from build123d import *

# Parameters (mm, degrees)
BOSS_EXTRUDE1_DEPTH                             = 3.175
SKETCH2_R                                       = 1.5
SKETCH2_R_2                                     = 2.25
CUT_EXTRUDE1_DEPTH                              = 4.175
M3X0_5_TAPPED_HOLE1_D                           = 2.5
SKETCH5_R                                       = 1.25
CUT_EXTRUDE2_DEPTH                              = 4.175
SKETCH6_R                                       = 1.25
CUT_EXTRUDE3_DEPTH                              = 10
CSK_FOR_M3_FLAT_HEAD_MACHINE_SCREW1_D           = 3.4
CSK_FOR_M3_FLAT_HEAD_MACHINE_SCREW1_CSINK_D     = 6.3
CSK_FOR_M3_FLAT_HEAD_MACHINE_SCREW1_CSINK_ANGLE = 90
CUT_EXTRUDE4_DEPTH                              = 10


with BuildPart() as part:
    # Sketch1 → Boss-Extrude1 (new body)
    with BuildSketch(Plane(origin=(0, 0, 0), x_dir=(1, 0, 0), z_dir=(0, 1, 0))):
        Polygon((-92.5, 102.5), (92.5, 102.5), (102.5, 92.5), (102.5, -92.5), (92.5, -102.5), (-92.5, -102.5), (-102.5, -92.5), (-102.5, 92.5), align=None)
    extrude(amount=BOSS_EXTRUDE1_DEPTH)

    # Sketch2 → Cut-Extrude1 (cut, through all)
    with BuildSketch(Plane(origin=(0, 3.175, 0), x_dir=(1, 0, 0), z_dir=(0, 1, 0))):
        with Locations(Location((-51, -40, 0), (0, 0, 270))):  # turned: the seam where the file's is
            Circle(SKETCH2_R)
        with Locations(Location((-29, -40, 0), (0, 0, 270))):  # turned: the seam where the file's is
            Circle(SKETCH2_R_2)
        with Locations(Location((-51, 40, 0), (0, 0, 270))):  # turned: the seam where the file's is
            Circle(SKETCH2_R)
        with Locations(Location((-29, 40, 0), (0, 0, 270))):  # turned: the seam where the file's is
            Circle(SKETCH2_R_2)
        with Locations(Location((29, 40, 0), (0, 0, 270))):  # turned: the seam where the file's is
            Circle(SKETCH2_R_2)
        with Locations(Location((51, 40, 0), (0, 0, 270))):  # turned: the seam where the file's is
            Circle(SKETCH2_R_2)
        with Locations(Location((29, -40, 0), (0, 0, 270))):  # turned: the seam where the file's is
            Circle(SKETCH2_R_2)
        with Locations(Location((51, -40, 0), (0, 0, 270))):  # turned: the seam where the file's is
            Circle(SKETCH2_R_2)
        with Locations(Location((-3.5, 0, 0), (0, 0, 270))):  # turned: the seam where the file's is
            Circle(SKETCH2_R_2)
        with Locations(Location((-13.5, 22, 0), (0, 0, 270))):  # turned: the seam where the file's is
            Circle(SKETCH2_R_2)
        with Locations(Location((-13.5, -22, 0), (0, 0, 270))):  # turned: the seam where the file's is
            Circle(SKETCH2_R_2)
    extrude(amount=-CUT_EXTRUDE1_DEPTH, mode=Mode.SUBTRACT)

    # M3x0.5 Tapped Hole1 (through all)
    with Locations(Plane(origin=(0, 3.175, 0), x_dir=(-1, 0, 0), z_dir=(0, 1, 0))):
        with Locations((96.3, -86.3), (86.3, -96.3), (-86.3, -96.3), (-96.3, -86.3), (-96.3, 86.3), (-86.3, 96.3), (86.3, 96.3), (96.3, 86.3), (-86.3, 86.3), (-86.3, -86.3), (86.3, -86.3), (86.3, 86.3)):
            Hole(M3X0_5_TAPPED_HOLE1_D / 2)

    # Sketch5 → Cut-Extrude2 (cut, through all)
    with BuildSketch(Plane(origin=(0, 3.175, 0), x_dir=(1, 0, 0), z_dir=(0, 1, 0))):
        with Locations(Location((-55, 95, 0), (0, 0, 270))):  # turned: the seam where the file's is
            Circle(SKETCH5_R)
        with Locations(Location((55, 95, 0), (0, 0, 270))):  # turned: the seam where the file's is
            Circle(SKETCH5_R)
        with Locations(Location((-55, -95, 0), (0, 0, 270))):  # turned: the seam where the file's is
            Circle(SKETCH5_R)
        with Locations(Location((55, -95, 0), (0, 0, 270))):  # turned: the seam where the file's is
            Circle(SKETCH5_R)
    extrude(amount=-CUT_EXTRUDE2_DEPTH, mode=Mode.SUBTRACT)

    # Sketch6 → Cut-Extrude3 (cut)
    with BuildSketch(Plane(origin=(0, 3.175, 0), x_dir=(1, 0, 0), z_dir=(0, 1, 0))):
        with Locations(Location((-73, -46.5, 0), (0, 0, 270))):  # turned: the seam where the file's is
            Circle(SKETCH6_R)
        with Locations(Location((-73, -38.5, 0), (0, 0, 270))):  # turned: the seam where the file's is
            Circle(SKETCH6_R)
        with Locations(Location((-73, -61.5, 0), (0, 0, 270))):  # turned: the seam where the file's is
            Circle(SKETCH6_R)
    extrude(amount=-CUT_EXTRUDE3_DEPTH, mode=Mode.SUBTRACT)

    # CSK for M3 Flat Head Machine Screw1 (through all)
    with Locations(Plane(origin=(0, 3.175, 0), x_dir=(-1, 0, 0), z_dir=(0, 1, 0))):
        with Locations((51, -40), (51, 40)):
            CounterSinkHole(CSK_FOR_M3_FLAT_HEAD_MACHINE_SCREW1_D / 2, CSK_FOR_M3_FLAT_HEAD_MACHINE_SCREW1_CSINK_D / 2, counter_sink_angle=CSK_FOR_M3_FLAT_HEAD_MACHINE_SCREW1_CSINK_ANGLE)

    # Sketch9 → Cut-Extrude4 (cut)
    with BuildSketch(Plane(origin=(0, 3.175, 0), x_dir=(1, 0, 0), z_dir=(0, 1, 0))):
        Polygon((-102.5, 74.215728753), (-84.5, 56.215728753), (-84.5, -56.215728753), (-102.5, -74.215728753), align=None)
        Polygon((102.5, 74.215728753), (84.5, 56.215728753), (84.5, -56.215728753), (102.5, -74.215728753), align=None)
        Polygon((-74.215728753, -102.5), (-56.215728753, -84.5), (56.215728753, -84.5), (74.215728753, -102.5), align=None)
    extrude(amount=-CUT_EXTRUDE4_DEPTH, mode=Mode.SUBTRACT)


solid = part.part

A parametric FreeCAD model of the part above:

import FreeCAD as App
import Part
import Sketcher
from FreeCAD import Vector

doc = App.newDocument("Part")
body = doc.addObject("PartDesign::Body", "Body")

# Sketch on XZ plane
sketch1 = body.newObject("Sketcher::SketchObject", "Sketch")
sketch1.AttachmentSupport = (doc.getObject("XZ_Plane"), [""])
sketch1.MapMode = "FlatFace"
sketch1.addGeometry([
    Part.LineSegment(Vector(92, -102, 0), Vector(-92, -102, 0)),  # 0
    Part.LineSegment(Vector(-92, -102, 0), Vector(-102, -92, 0)),  # 1
    Part.LineSegment(Vector(-102, -92, 0), Vector(-102, 92, 0)),  # 2
    Part.LineSegment(Vector(-102, 92, 0), Vector(-92, 102, 0)),  # 3
    Part.LineSegment(Vector(-92, 102, 0), Vector(92, 102, 0)),  # 4
    Part.LineSegment(Vector(92, 102, 0), Vector(102, 92, 0)),  # 5
    Part.LineSegment(Vector(102, 92, 0), Vector(102, -92, 0)),  # 6
    Part.LineSegment(Vector(102, -92, 0), Vector(92, -102, 0)),  # 7
], False)
sketch1.addConstraint([
    Sketcher.Constraint("Coincident", 0, 2, 1, 1),
    Sketcher.Constraint("Coincident", 1, 2, 2, 1),
    Sketcher.Constraint("Coincident", 2, 2, 3, 1),
    Sketcher.Constraint("Coincident", 3, 2, 4, 1),
    Sketcher.Constraint("Coincident", 4, 2, 5, 1),
    Sketcher.Constraint("Coincident", 5, 2, 6, 1),
    Sketcher.Constraint("Coincident", 6, 2, 7, 1),
    Sketcher.Constraint("Coincident", 7, 2, 0, 1),
    Sketcher.Constraint("Horizontal", 0),
    Sketcher.Constraint("Vertical", 2),
    Sketcher.Constraint("Horizontal", 4),
    Sketcher.Constraint("Vertical", 6),
    Sketcher.Constraint("Symmetric", 0, 2, 4, 2, -1, 1),
    Sketcher.Constraint("Symmetric", 1, 2, 5, 2, -1, 1),
    Sketcher.Constraint("Perpendicular", 1, 3),
    Sketcher.Constraint("Perpendicular", 5, 7),
    Sketcher.Constraint("Horizontal", 2, 2, 5, 2),
    Sketcher.Constraint("Horizontal", 1, 2, 6, 2),
    Sketcher.Constraint("Vertical", 0, 2, 3, 2),
    Sketcher.Constraint("Equal", 4, 2),
    Sketcher.Constraint("DistanceX", 0, 2, 0, 1, 185.0),
    Sketcher.Constraint("DistanceX", 1, 2, 0, 2, 10.0),
])
pad1 = body.newObject("PartDesign::Pad", "Pad")
pad1.Profile = sketch1
pad1.Length = 3.175
pad1.Reversed = True

# Sketch on XZ plane
sketch2 = body.newObject("Sketcher::SketchObject", "Sketch001")
sketch2.AttachmentSupport = (doc.getObject("XZ_Plane"), [""])
sketch2.MapMode = "FlatFace"
sketch2.AttachmentOffset = App.Placement(Vector(0, 0, -3.175), App.Rotation())
sketch2.addGeometry([
    Part.Circle(Vector(-51, 40, 0), Vector(0, 0, 1), 1.5),  # 0
    Part.Circle(Vector(-29, 40, 0), Vector(0, 0, 1), 2.2),  # 1
    Part.Circle(Vector(-51, -40, 0), Vector(0, 0, 1), 1.5),  # 2
    Part.Circle(Vector(-29, -40, 0), Vector(0, 0, 1), 2.2),  # 3
    Part.Circle(Vector(29, -40, 0), Vector(0, 0, 1), 2.2),  # 4
    Part.Circle(Vector(51, -40, 0), Vector(0, 0, 1), 2.2),  # 5
    Part.Circle(Vector(29, 40, 0), Vector(0, 0, 1), 2.2),  # 6
    Part.Circle(Vector(51, 40, 0), Vector(0, 0, 1), 2.2),  # 7
    Part.Circle(Vector(-3.5, 0, 0), Vector(0, 0, 1), 2.2),  # 8
    Part.Circle(Vector(-13.5, -22, 0), Vector(0, 0, 1), 2.2),  # 9
    Part.Circle(Vector(-13.5, 22, 0), Vector(0, 0, 1), 2.2),  # 10
], False)
sketch2.addConstraint([
    Sketcher.Constraint("Equal", 0, 2),
    Sketcher.Constraint("Equal", 1, 3),
    Sketcher.Constraint("Equal", 3, 4),
    Sketcher.Constraint("Equal", 4, 5),
    Sketcher.Constraint("Equal", 5, 6),
    Sketcher.Constraint("Equal", 6, 7),
    Sketcher.Constraint("Equal", 7, 8),
    Sketcher.Constraint("Equal", 8, 9),
    Sketcher.Constraint("Equal", 9, 10),
    Sketcher.Constraint("Symmetric", 1, 3, 4, 3, -1, 1),
    Sketcher.Constraint("Symmetric", 0, 3, 5, 3, -1, 1),
    Sketcher.Constraint("Symmetric", 3, 3, 6, 3, -1, 1),
    Sketcher.Constraint("Symmetric", 2, 3, 7, 3, -1, 1),
    Sketcher.Constraint("Symmetric", 3, 3, 4, 3, -2),
    Sketcher.Constraint("Symmetric", 2, 3, 5, 3, -2),
    Sketcher.Constraint("Symmetric", 9, 3, 10, 3, -1),
    Sketcher.Constraint("PointOnObject", 8, 3, -1),
    Sketcher.Constraint("Horizontal", 0, 3, 1, 3),
    Sketcher.Constraint("Diameter", 0, 3.0),
    Sketcher.Constraint("Diameter", 1, 4.5),
    Sketcher.Constraint("DistanceX", 0, 3, -1, 1, 51.0),
    Sketcher.Constraint("DistanceY", -1, 1, 0, 3, 40.0),
    Sketcher.Constraint("DistanceX", 1, 3, -1, 1, 29.0),
    Sketcher.Constraint("DistanceY", 9, 3, -1, 1, 22.0),
    Sketcher.Constraint("DistanceX", 9, 3, 8, 3, 10.0),
    Sketcher.Constraint("DistanceX", 8, 3, -1, 1, 3.5),
])
pocket1 = body.newObject("PartDesign::Pocket", "Pocket")
pocket1.Profile = sketch2
pocket1.Type = "ThroughAll"
pocket1.Reversed = True

# Sketch on XZ plane
sketch3 = body.newObject("Sketcher::SketchObject", "Sketch002")
sketch3.AttachmentSupport = (doc.getObject("XZ_Plane"), [""])
sketch3.MapMode = "FlatFace"
sketch3.AttachmentOffset = App.Placement(Vector(0, 0, -3.175), App.Rotation())
sketch3.addGeometry([
    Part.Circle(Vector(-96.3, -86.3, 0), Vector(0, 0, 1), 1.2),  # 0
    Part.Circle(Vector(-86.3, -96.3, 0), Vector(0, 0, 1), 1.2),  # 1
    Part.Circle(Vector(86.3, -96.3, 0), Vector(0, 0, 1), 1.2),  # 2
    Part.Circle(Vector(96.3, -86.3, 0), Vector(0, 0, 1), 1.2),  # 3
    Part.Circle(Vector(96.3, 86.3, 0), Vector(0, 0, 1), 1.2),  # 4
    Part.Circle(Vector(86.3, 96.3, 0), Vector(0, 0, 1), 1.2),  # 5
    Part.Circle(Vector(-86.3, 96.3, 0), Vector(0, 0, 1), 1.2),  # 6
    Part.Circle(Vector(-96.3, 86.3, 0), Vector(0, 0, 1), 1.2),  # 7
    Part.Circle(Vector(86.3, 86.3, 0), Vector(0, 0, 1), 1.2),  # 8
    Part.Circle(Vector(86.3, -86.3, 0), Vector(0, 0, 1), 1.2),  # 9
    Part.Circle(Vector(-86.3, -86.3, 0), Vector(0, 0, 1), 1.2),  # 10
    Part.Circle(Vector(-86.3, 86.3, 0), Vector(0, 0, 1), 1.2),  # 11
], False)
sketch3.addConstraint([
    Sketcher.Constraint("Equal", 0, 1),
    Sketcher.Constraint("Equal", 1, 2),
    Sketcher.Constraint("Equal", 2, 3),
    Sketcher.Constraint("Equal", 3, 4),
    Sketcher.Constraint("Equal", 4, 5),
    Sketcher.Constraint("Equal", 5, 6),
    Sketcher.Constraint("Equal", 6, 7),
    Sketcher.Constraint("Equal", 7, 8),
    Sketcher.Constraint("Equal", 8, 9),
    Sketcher.Constraint("Equal", 9, 10),
    Sketcher.Constraint("Equal", 10, 11),
    Sketcher.Constraint("Symmetric", 0, 3, 4, 3, -1, 1),
    Sketcher.Constraint("Symmetric", 1, 3, 5, 3, -1, 1),
    Sketcher.Constraint("Symmetric", 2, 3, 6, 3, -1, 1),
    Sketcher.Constraint("Symmetric", 3, 3, 7, 3, -1, 1),
    Sketcher.Constraint("Symmetric", 8, 3, 10, 3, -1, 1),
    Sketcher.Constraint("Symmetric", 9, 3, 11, 3, -1, 1),
    Sketcher.Constraint("Symmetric", 1, 3, 2, 3, -2),
    Sketcher.Constraint("Symmetric", 0, 3, 3, 3, -2),
    Sketcher.Constraint("Symmetric", 9, 3, 10, 3, -2),
    Sketcher.Constraint("Horizontal", 7, 3, 8, 3),
    Sketcher.Constraint("Vertical", 5, 3, 8, 3),
    Sketcher.Constraint("Diameter", 0, 2.5),
    Sketcher.Constraint("DistanceX", 0, 3, 1, 3, 10.0),
    Sketcher.Constraint("DistanceY", 1, 3, 0, 3, 10.0),
    Sketcher.Constraint("DistanceX", 0, 3, -1, 1, 96.3),
    Sketcher.Constraint("DistanceY", 0, 3, -1, 1, 86.3),
])
doc.recompute()
hole = body.newObject("PartDesign::Hole", "Hole")
hole.Profile = sketch3
hole.ThreadType = "None"
hole.Diameter = 2.5
hole.DepthType = "ThroughAll"
hole.Reversed = True

# Sketch on XZ plane
sketch4 = body.newObject("Sketcher::SketchObject", "Sketch003")
sketch4.AttachmentSupport = (doc.getObject("XZ_Plane"), [""])
sketch4.MapMode = "FlatFace"
sketch4.AttachmentOffset = App.Placement(Vector(0, 0, -3.175), App.Rotation())
sketch4.addGeometry([
    Part.Circle(Vector(-55, -95, 0), Vector(0, 0, 1), 1.2),
    Part.Circle(Vector(55, -95, 0), Vector(0, 0, 1), 1.2),
    Part.Circle(Vector(-55, 95, 0), Vector(0, 0, 1), 1.2),
    Part.Circle(Vector(55, 95, 0), Vector(0, 0, 1), 1.2),
], False)
sketch4.addConstraint([
    Sketcher.Constraint("Equal", 0, 1),
    Sketcher.Constraint("Equal", 1, 2),
    Sketcher.Constraint("Equal", 2, 3),
    Sketcher.Constraint("Symmetric", 1, 3, 2, 3, -1, 1),
    Sketcher.Constraint("Symmetric", 0, 3, 3, 3, -1, 1),
    Sketcher.Constraint("Symmetric", 0, 3, 1, 3, -2),
    Sketcher.Constraint("Diameter", 0, 2.5),
    Sketcher.Constraint("DistanceX", 0, 3, -1, 1, 55.0),
    Sketcher.Constraint("DistanceY", 0, 3, -1, 1, 95.0),
])
pocket2 = body.newObject("PartDesign::Pocket", "Pocket001")
pocket2.Profile = sketch4
pocket2.Type = "ThroughAll"
pocket2.Reversed = True

# Sketch on XZ plane
sketch5 = body.newObject("Sketcher::SketchObject", "Sketch004")
sketch5.AttachmentSupport = (doc.getObject("XZ_Plane"), [""])
sketch5.MapMode = "FlatFace"
sketch5.AttachmentOffset = App.Placement(Vector(0, 0, -3.175), App.Rotation())
sketch5.addGeometry([
    Part.Circle(Vector(-73, 46.5, 0), Vector(0, 0, 1), 1.2),
    Part.Circle(Vector(-73, 38.5, 0), Vector(0, 0, 1), 1.2),
    Part.Circle(Vector(-73, 61.5, 0), Vector(0, 0, 1), 1.2),
], False)
sketch5.addConstraint([
    Sketcher.Constraint("Equal", 0, 1),
    Sketcher.Constraint("Equal", 1, 2),
    Sketcher.Constraint("Vertical", 0, 3, 1, 3),
    Sketcher.Constraint("Vertical", 1, 3, 2, 3),
    Sketcher.Constraint("Diameter", 0, 2.5),
    Sketcher.Constraint("DistanceX", 0, 3, -1, 1, 73.0),
    Sketcher.Constraint("DistanceY", 1, 3, 0, 3, 8.0),
    Sketcher.Constraint("DistanceY", 0, 3, 2, 3, 15.0),
    Sketcher.Constraint("DistanceY", -1, 1, 0, 3, 46.5),
])
pocket3 = body.newObject("PartDesign::Pocket", "Pocket002")
pocket3.Profile = sketch5
pocket3.Length = 10
pocket3.Reversed = True

# Sketch on XZ plane
sketch6 = body.newObject("Sketcher::SketchObject", "Sketch005")
sketch6.AttachmentSupport = (doc.getObject("XZ_Plane"), [""])
sketch6.MapMode = "FlatFace"
sketch6.AttachmentOffset = App.Placement(Vector(0, 0, -3.175), App.Rotation())
sketch6.addGeometry([
    Part.Circle(Vector(-51, -40, 0), Vector(0, 0, 1), 1.7),
    Part.Circle(Vector(-51, 40, 0), Vector(0, 0, 1), 1.7),
], False)
sketch6.addConstraint([
    Sketcher.Constraint("Equal", 0, 1),
    Sketcher.Constraint("Symmetric", 0, 3, 1, 3, -1),
    Sketcher.Constraint("Diameter", 0, 3.4),
    Sketcher.Constraint("DistanceX", 0, 3, -1, 1, 51.0),
    Sketcher.Constraint("DistanceY", 0, 3, -1, 1, 40.0),
])
doc.recompute()
hole2 = body.newObject("PartDesign::Hole", "Hole001")
hole2.Profile = sketch6
hole2.ThreadType = "None"
hole2.Diameter = 3.4
hole2.DepthType = "ThroughAll"
hole2.HoleCutType = "Countersink"
hole2.HoleCutDiameter = 6.3
hole2.HoleCutCountersinkAngle = 90
hole2.Reversed = True

# Sketch on XZ plane
sketch7 = body.newObject("Sketcher::SketchObject", "Sketch006")
sketch7.AttachmentSupport = (doc.getObject("XZ_Plane"), [""])
sketch7.MapMode = "FlatFace"
sketch7.AttachmentOffset = App.Placement(Vector(0, 0, -3.175), App.Rotation())
sketch7.addGeometry([
    Part.LineSegment(Vector(-84, -56, 0), Vector(-102, -74, 0)),  # 0
    Part.LineSegment(Vector(-102, -74, 0), Vector(-102, 74, 0)),  # 1
    Part.LineSegment(Vector(-102, 74, 0), Vector(-84, 56, 0)),  # 2
    Part.LineSegment(Vector(-84, 56, 0), Vector(-84, -56, 0)),  # 3
    Part.LineSegment(Vector(102, -74, 0), Vector(84, -56, 0)),  # 4
    Part.LineSegment(Vector(84, -56, 0), Vector(84, 56, 0)),  # 5
    Part.LineSegment(Vector(84, 56, 0), Vector(102, 74, 0)),  # 6
    Part.LineSegment(Vector(102, 74, 0), Vector(102, -74, 0)),  # 7
    Part.LineSegment(Vector(-56, 84, 0), Vector(-74, 102, 0)),  # 8
    Part.LineSegment(Vector(-74, 102, 0), Vector(74, 102, 0)),  # 9
    Part.LineSegment(Vector(74, 102, 0), Vector(56, 84, 0)),  # 10
    Part.LineSegment(Vector(56, 84, 0), Vector(-56, 84, 0)),  # 11
], False)
sketch7.addConstraint([
    Sketcher.Constraint("Coincident", 0, 2, 1, 1),
    Sketcher.Constraint("Coincident", 1, 2, 2, 1),
    Sketcher.Constraint("Coincident", 2, 2, 3, 1),
    Sketcher.Constraint("Coincident", 3, 2, 0, 1),
    Sketcher.Constraint("Coincident", 4, 2, 5, 1),
    Sketcher.Constraint("Coincident", 5, 2, 6, 1),
    Sketcher.Constraint("Coincident", 6, 2, 7, 1),
    Sketcher.Constraint("Coincident", 7, 2, 4, 1),
    Sketcher.Constraint("Coincident", 8, 2, 9, 1),
    Sketcher.Constraint("Coincident", 9, 2, 10, 1),
    Sketcher.Constraint("Coincident", 10, 2, 11, 1),
    Sketcher.Constraint("Coincident", 11, 2, 8, 1),
    Sketcher.Constraint("Vertical", 1),
    Sketcher.Constraint("Vertical", 3),
    Sketcher.Constraint("Vertical", 5),
    Sketcher.Constraint("Vertical", 7),
    Sketcher.Constraint("Horizontal", 9),
    Sketcher.Constraint("Horizontal", 11),
    Sketcher.Constraint("Symmetric", 2, 2, 4, 2, -1, 1),
    Sketcher.Constraint("Symmetric", 0, 2, 6, 2, -1, 1),
    Sketcher.Constraint("Perpendicular", 0, 2),
    Sketcher.Constraint("Parallel", 2, 4),
    Sketcher.Constraint("Perpendicular", 4, 6),
    Sketcher.Constraint("Perpendicular", 6, 8),
    Sketcher.Constraint("Perpendicular", 8, 10),
    Sketcher.Constraint("Horizontal", 3, 2, 4, 2),
    Sketcher.Constraint("Horizontal", 1, 2, 6, 2),
    Sketcher.Constraint("Equal", 9, 1),
    Sketcher.Constraint("Equal", 11, 3),
    Sketcher.Constraint("DistanceX", 1, 2, 2, 2, 18.0),
    Sketcher.Constraint("DistanceX", 3, 2, 4, 2, 169.0),
    Sketcher.Constraint("DistanceY", -1, 1, 8, 2, 102.5),
    Sketcher.Constraint("DistanceX", 9, 1, 9, 2, 148.431458),
    Sketcher.Constraint("DistanceX", 8, 2, -1, 1, 74.215729),
])
pocket4 = body.newObject("PartDesign::Pocket", "Pocket003")
pocket4.Profile = sketch7
pocket4.Length = 10
pocket4.Reversed = True

doc.recompute()
